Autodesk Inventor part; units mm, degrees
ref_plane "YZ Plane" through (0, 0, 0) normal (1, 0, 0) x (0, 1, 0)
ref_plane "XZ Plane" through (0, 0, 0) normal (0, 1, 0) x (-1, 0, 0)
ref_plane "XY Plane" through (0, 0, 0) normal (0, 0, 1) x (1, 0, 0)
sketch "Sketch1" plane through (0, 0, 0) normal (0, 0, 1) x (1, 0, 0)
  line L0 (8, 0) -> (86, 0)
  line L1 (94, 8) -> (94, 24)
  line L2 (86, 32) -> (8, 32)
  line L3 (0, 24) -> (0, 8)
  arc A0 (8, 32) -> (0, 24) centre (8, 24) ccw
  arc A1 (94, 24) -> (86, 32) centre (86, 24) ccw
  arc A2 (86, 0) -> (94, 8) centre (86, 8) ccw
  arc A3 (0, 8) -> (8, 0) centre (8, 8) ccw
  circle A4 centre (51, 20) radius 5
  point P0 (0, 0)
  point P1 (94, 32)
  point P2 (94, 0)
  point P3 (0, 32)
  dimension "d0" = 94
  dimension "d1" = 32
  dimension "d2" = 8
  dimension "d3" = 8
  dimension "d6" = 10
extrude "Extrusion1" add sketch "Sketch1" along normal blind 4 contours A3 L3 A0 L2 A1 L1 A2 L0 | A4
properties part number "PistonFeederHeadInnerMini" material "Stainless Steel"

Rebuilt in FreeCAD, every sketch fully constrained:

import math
import FreeCAD as App
import Part
import Sketcher

doc = App.newDocument("Part")
params = doc.addObject("Spreadsheet::Sheet", "Params")
for row, (alias, value) in enumerate([
    ("sketch1_radius", "8 mm"),
    ("pad1_length", "4 mm"),
], start=1):
    params.set(f"A{row}", alias)
    params.set(f"B{row}", "=" + value)
    params.setAlias(f"B{row}", alias)

body = doc.addObject("PartDesign::Body", "Body")

# Sketch on XY plane
sketch1 = body.newObject("Sketcher::SketchObject", "Sketch")
sketch1.AttachmentSupport = (doc.getObject("XY_Plane"), [""])
sketch1.MapMode = "FlatFace"
sketch1.addGeometry(Part.ArcOfCircle(Part.Circle(App.Vector(8, 8, 0), App.Vector(0, 0, 1), 8), math.radians(180), math.radians(270)), False)
sketch1.addGeometry(Part.LineSegment(App.Vector(8, 0, 0), App.Vector(86, 0, 0)), False)
sketch1.addGeometry(Part.ArcOfCircle(Part.Circle(App.Vector(86, 8, 0), App.Vector(0, 0, 1), 8), math.radians(-90), math.radians(0)), False)
sketch1.addGeometry(Part.LineSegment(App.Vector(94, 8, 0), App.Vector(94, 24, 0)), False)
sketch1.addGeometry(Part.ArcOfCircle(Part.Circle(App.Vector(86, 24, 0), App.Vector(0, 0, 1), 8), math.radians(0), math.radians(90)), False)
sketch1.addGeometry(Part.LineSegment(App.Vector(86, 32, 0), App.Vector(8, 32, 0)), False)
sketch1.addGeometry(Part.ArcOfCircle(Part.Circle(App.Vector(8, 24, 0), App.Vector(0, 0, 1), 8), math.radians(90), math.radians(180)), False)
sketch1.addGeometry(Part.LineSegment(App.Vector(0, 24, 0), App.Vector(0, 8, 0)), False)
sketch1.addConstraint(Sketcher.Constraint("Tangent", 0, 2, 1, 1))
sketch1.addConstraint(Sketcher.Constraint("Tangent", 1, 2, 2, 1))
sketch1.addConstraint(Sketcher.Constraint("Tangent", 2, 2, 3, 1))
sketch1.addConstraint(Sketcher.Constraint("Tangent", 3, 2, 4, 1))
sketch1.addConstraint(Sketcher.Constraint("Tangent", 4, 2, 5, 1))
sketch1.addConstraint(Sketcher.Constraint("Tangent", 5, 2, 6, 1))
sketch1.addConstraint(Sketcher.Constraint("Tangent", 6, 2, 7, 1))
sketch1.addConstraint(Sketcher.Constraint("Tangent", 7, 2, 0, 1))
sketch1.addConstraint(Sketcher.Constraint("Horizontal", 1))
sketch1.addConstraint(Sketcher.Constraint("Vertical", 3))
sketch1.addConstraint(Sketcher.Constraint("Horizontal", 5))
sketch1.addConstraint(Sketcher.Constraint("Vertical", 7))
sketch1.addConstraint(Sketcher.Constraint("Equal", 0, 2))
sketch1.addConstraint(Sketcher.Constraint("Equal", 2, 4))
sketch1.addConstraint(Sketcher.Constraint("Equal", 4, 6))
sketch1.addConstraint(Sketcher.Constraint("PointOnObject", 0, 2, -1))
sketch1.addConstraint(Sketcher.Constraint("PointOnObject", 6, 2, -2))
sketch1.addConstraint(Sketcher.Constraint("Radius", 0, 8.0))
sketch1.addConstraint(Sketcher.Constraint("DistanceX", -1, 1, 2, 2, 94.0))
sketch1.addConstraint(Sketcher.Constraint("DistanceY", -1, 1, 4, 2, 32.0))
sketch1.setExpression("Constraints[17]", "Params.sketch1_radius")
pad1 = body.newObject("PartDesign::Pad", "Pad")
pad1.Profile = sketch1
pad1.setExpression("Length", "Params.pad1_length")

doc.recompute()
